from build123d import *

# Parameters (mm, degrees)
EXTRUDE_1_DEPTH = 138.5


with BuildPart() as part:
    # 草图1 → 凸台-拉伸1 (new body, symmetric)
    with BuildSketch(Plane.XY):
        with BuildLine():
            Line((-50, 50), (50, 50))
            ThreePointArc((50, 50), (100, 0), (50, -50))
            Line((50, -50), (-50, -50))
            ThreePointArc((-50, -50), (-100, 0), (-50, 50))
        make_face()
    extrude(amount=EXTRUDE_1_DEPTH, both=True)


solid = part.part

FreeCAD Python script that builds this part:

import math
import FreeCAD as App
import Part
import Sketcher
from FreeCAD import Vector
Q = App.Units.Quantity

doc = App.newDocument("Part")
body = doc.addObject("PartDesign::Body", "Body")

sketch1 = body.newObject("Sketcher::SketchObject", "Sketch")
sketch1.AttachmentSupport = (doc.getObject("XY_Plane"), [""])
sketch1.MapMode = "FlatFace"
sketch1.addGeometry(Part.LineSegment(Vector(50, 50, 0), Vector(-50, 50, 0)), False)
sketch1.addGeometry(Part.ArcOfCircle(Part.Circle(Vector(-50, 0, 0), Vector(0, 0, 1), 50), math.radians(90), math.radians(270)), False)
sketch1.addGeometry(Part.LineSegment(Vector(-50, -50, 0), Vector(50, -50, 0)), False)
sketch1.addGeometry(Part.ArcOfCircle(Part.Circle(Vector(50, 0, 0), Vector(0, 0, 1), 50), math.radians(-90), math.radians(90)), False)
sketch1.addConstraint(Sketcher.Constraint("Tangent", 0, 2, 1, 1))
sketch1.addConstraint(Sketcher.Constraint("Tangent", 1, 2, 2, 1))
sketch1.addConstraint(Sketcher.Constraint("Tangent", 2, 2, 3, 1))
sketch1.addConstraint(Sketcher.Constraint("Tangent", 3, 2, 0, 1))
sketch1.addConstraint(Sketcher.Constraint("Horizontal", 0))
sketch1.addConstraint(Sketcher.Constraint("Horizontal", 2))
sketch1.addConstraint(Sketcher.Constraint("Symmetric", 1, 3, 3, 3, -1, 1))
sketch1.addConstraint(Sketcher.Constraint("Radius", 1, Q("50 mm")))
sketch1.addConstraint(Sketcher.Constraint("DistanceX", 0, 2, 0, 1, Q("100 mm")))
pad1 = body.newObject("PartDesign::Pad", "Pad")
pad1.Profile = sketch1
pad1.Length = 277
pad1.Midplane = True

doc.recompute()
